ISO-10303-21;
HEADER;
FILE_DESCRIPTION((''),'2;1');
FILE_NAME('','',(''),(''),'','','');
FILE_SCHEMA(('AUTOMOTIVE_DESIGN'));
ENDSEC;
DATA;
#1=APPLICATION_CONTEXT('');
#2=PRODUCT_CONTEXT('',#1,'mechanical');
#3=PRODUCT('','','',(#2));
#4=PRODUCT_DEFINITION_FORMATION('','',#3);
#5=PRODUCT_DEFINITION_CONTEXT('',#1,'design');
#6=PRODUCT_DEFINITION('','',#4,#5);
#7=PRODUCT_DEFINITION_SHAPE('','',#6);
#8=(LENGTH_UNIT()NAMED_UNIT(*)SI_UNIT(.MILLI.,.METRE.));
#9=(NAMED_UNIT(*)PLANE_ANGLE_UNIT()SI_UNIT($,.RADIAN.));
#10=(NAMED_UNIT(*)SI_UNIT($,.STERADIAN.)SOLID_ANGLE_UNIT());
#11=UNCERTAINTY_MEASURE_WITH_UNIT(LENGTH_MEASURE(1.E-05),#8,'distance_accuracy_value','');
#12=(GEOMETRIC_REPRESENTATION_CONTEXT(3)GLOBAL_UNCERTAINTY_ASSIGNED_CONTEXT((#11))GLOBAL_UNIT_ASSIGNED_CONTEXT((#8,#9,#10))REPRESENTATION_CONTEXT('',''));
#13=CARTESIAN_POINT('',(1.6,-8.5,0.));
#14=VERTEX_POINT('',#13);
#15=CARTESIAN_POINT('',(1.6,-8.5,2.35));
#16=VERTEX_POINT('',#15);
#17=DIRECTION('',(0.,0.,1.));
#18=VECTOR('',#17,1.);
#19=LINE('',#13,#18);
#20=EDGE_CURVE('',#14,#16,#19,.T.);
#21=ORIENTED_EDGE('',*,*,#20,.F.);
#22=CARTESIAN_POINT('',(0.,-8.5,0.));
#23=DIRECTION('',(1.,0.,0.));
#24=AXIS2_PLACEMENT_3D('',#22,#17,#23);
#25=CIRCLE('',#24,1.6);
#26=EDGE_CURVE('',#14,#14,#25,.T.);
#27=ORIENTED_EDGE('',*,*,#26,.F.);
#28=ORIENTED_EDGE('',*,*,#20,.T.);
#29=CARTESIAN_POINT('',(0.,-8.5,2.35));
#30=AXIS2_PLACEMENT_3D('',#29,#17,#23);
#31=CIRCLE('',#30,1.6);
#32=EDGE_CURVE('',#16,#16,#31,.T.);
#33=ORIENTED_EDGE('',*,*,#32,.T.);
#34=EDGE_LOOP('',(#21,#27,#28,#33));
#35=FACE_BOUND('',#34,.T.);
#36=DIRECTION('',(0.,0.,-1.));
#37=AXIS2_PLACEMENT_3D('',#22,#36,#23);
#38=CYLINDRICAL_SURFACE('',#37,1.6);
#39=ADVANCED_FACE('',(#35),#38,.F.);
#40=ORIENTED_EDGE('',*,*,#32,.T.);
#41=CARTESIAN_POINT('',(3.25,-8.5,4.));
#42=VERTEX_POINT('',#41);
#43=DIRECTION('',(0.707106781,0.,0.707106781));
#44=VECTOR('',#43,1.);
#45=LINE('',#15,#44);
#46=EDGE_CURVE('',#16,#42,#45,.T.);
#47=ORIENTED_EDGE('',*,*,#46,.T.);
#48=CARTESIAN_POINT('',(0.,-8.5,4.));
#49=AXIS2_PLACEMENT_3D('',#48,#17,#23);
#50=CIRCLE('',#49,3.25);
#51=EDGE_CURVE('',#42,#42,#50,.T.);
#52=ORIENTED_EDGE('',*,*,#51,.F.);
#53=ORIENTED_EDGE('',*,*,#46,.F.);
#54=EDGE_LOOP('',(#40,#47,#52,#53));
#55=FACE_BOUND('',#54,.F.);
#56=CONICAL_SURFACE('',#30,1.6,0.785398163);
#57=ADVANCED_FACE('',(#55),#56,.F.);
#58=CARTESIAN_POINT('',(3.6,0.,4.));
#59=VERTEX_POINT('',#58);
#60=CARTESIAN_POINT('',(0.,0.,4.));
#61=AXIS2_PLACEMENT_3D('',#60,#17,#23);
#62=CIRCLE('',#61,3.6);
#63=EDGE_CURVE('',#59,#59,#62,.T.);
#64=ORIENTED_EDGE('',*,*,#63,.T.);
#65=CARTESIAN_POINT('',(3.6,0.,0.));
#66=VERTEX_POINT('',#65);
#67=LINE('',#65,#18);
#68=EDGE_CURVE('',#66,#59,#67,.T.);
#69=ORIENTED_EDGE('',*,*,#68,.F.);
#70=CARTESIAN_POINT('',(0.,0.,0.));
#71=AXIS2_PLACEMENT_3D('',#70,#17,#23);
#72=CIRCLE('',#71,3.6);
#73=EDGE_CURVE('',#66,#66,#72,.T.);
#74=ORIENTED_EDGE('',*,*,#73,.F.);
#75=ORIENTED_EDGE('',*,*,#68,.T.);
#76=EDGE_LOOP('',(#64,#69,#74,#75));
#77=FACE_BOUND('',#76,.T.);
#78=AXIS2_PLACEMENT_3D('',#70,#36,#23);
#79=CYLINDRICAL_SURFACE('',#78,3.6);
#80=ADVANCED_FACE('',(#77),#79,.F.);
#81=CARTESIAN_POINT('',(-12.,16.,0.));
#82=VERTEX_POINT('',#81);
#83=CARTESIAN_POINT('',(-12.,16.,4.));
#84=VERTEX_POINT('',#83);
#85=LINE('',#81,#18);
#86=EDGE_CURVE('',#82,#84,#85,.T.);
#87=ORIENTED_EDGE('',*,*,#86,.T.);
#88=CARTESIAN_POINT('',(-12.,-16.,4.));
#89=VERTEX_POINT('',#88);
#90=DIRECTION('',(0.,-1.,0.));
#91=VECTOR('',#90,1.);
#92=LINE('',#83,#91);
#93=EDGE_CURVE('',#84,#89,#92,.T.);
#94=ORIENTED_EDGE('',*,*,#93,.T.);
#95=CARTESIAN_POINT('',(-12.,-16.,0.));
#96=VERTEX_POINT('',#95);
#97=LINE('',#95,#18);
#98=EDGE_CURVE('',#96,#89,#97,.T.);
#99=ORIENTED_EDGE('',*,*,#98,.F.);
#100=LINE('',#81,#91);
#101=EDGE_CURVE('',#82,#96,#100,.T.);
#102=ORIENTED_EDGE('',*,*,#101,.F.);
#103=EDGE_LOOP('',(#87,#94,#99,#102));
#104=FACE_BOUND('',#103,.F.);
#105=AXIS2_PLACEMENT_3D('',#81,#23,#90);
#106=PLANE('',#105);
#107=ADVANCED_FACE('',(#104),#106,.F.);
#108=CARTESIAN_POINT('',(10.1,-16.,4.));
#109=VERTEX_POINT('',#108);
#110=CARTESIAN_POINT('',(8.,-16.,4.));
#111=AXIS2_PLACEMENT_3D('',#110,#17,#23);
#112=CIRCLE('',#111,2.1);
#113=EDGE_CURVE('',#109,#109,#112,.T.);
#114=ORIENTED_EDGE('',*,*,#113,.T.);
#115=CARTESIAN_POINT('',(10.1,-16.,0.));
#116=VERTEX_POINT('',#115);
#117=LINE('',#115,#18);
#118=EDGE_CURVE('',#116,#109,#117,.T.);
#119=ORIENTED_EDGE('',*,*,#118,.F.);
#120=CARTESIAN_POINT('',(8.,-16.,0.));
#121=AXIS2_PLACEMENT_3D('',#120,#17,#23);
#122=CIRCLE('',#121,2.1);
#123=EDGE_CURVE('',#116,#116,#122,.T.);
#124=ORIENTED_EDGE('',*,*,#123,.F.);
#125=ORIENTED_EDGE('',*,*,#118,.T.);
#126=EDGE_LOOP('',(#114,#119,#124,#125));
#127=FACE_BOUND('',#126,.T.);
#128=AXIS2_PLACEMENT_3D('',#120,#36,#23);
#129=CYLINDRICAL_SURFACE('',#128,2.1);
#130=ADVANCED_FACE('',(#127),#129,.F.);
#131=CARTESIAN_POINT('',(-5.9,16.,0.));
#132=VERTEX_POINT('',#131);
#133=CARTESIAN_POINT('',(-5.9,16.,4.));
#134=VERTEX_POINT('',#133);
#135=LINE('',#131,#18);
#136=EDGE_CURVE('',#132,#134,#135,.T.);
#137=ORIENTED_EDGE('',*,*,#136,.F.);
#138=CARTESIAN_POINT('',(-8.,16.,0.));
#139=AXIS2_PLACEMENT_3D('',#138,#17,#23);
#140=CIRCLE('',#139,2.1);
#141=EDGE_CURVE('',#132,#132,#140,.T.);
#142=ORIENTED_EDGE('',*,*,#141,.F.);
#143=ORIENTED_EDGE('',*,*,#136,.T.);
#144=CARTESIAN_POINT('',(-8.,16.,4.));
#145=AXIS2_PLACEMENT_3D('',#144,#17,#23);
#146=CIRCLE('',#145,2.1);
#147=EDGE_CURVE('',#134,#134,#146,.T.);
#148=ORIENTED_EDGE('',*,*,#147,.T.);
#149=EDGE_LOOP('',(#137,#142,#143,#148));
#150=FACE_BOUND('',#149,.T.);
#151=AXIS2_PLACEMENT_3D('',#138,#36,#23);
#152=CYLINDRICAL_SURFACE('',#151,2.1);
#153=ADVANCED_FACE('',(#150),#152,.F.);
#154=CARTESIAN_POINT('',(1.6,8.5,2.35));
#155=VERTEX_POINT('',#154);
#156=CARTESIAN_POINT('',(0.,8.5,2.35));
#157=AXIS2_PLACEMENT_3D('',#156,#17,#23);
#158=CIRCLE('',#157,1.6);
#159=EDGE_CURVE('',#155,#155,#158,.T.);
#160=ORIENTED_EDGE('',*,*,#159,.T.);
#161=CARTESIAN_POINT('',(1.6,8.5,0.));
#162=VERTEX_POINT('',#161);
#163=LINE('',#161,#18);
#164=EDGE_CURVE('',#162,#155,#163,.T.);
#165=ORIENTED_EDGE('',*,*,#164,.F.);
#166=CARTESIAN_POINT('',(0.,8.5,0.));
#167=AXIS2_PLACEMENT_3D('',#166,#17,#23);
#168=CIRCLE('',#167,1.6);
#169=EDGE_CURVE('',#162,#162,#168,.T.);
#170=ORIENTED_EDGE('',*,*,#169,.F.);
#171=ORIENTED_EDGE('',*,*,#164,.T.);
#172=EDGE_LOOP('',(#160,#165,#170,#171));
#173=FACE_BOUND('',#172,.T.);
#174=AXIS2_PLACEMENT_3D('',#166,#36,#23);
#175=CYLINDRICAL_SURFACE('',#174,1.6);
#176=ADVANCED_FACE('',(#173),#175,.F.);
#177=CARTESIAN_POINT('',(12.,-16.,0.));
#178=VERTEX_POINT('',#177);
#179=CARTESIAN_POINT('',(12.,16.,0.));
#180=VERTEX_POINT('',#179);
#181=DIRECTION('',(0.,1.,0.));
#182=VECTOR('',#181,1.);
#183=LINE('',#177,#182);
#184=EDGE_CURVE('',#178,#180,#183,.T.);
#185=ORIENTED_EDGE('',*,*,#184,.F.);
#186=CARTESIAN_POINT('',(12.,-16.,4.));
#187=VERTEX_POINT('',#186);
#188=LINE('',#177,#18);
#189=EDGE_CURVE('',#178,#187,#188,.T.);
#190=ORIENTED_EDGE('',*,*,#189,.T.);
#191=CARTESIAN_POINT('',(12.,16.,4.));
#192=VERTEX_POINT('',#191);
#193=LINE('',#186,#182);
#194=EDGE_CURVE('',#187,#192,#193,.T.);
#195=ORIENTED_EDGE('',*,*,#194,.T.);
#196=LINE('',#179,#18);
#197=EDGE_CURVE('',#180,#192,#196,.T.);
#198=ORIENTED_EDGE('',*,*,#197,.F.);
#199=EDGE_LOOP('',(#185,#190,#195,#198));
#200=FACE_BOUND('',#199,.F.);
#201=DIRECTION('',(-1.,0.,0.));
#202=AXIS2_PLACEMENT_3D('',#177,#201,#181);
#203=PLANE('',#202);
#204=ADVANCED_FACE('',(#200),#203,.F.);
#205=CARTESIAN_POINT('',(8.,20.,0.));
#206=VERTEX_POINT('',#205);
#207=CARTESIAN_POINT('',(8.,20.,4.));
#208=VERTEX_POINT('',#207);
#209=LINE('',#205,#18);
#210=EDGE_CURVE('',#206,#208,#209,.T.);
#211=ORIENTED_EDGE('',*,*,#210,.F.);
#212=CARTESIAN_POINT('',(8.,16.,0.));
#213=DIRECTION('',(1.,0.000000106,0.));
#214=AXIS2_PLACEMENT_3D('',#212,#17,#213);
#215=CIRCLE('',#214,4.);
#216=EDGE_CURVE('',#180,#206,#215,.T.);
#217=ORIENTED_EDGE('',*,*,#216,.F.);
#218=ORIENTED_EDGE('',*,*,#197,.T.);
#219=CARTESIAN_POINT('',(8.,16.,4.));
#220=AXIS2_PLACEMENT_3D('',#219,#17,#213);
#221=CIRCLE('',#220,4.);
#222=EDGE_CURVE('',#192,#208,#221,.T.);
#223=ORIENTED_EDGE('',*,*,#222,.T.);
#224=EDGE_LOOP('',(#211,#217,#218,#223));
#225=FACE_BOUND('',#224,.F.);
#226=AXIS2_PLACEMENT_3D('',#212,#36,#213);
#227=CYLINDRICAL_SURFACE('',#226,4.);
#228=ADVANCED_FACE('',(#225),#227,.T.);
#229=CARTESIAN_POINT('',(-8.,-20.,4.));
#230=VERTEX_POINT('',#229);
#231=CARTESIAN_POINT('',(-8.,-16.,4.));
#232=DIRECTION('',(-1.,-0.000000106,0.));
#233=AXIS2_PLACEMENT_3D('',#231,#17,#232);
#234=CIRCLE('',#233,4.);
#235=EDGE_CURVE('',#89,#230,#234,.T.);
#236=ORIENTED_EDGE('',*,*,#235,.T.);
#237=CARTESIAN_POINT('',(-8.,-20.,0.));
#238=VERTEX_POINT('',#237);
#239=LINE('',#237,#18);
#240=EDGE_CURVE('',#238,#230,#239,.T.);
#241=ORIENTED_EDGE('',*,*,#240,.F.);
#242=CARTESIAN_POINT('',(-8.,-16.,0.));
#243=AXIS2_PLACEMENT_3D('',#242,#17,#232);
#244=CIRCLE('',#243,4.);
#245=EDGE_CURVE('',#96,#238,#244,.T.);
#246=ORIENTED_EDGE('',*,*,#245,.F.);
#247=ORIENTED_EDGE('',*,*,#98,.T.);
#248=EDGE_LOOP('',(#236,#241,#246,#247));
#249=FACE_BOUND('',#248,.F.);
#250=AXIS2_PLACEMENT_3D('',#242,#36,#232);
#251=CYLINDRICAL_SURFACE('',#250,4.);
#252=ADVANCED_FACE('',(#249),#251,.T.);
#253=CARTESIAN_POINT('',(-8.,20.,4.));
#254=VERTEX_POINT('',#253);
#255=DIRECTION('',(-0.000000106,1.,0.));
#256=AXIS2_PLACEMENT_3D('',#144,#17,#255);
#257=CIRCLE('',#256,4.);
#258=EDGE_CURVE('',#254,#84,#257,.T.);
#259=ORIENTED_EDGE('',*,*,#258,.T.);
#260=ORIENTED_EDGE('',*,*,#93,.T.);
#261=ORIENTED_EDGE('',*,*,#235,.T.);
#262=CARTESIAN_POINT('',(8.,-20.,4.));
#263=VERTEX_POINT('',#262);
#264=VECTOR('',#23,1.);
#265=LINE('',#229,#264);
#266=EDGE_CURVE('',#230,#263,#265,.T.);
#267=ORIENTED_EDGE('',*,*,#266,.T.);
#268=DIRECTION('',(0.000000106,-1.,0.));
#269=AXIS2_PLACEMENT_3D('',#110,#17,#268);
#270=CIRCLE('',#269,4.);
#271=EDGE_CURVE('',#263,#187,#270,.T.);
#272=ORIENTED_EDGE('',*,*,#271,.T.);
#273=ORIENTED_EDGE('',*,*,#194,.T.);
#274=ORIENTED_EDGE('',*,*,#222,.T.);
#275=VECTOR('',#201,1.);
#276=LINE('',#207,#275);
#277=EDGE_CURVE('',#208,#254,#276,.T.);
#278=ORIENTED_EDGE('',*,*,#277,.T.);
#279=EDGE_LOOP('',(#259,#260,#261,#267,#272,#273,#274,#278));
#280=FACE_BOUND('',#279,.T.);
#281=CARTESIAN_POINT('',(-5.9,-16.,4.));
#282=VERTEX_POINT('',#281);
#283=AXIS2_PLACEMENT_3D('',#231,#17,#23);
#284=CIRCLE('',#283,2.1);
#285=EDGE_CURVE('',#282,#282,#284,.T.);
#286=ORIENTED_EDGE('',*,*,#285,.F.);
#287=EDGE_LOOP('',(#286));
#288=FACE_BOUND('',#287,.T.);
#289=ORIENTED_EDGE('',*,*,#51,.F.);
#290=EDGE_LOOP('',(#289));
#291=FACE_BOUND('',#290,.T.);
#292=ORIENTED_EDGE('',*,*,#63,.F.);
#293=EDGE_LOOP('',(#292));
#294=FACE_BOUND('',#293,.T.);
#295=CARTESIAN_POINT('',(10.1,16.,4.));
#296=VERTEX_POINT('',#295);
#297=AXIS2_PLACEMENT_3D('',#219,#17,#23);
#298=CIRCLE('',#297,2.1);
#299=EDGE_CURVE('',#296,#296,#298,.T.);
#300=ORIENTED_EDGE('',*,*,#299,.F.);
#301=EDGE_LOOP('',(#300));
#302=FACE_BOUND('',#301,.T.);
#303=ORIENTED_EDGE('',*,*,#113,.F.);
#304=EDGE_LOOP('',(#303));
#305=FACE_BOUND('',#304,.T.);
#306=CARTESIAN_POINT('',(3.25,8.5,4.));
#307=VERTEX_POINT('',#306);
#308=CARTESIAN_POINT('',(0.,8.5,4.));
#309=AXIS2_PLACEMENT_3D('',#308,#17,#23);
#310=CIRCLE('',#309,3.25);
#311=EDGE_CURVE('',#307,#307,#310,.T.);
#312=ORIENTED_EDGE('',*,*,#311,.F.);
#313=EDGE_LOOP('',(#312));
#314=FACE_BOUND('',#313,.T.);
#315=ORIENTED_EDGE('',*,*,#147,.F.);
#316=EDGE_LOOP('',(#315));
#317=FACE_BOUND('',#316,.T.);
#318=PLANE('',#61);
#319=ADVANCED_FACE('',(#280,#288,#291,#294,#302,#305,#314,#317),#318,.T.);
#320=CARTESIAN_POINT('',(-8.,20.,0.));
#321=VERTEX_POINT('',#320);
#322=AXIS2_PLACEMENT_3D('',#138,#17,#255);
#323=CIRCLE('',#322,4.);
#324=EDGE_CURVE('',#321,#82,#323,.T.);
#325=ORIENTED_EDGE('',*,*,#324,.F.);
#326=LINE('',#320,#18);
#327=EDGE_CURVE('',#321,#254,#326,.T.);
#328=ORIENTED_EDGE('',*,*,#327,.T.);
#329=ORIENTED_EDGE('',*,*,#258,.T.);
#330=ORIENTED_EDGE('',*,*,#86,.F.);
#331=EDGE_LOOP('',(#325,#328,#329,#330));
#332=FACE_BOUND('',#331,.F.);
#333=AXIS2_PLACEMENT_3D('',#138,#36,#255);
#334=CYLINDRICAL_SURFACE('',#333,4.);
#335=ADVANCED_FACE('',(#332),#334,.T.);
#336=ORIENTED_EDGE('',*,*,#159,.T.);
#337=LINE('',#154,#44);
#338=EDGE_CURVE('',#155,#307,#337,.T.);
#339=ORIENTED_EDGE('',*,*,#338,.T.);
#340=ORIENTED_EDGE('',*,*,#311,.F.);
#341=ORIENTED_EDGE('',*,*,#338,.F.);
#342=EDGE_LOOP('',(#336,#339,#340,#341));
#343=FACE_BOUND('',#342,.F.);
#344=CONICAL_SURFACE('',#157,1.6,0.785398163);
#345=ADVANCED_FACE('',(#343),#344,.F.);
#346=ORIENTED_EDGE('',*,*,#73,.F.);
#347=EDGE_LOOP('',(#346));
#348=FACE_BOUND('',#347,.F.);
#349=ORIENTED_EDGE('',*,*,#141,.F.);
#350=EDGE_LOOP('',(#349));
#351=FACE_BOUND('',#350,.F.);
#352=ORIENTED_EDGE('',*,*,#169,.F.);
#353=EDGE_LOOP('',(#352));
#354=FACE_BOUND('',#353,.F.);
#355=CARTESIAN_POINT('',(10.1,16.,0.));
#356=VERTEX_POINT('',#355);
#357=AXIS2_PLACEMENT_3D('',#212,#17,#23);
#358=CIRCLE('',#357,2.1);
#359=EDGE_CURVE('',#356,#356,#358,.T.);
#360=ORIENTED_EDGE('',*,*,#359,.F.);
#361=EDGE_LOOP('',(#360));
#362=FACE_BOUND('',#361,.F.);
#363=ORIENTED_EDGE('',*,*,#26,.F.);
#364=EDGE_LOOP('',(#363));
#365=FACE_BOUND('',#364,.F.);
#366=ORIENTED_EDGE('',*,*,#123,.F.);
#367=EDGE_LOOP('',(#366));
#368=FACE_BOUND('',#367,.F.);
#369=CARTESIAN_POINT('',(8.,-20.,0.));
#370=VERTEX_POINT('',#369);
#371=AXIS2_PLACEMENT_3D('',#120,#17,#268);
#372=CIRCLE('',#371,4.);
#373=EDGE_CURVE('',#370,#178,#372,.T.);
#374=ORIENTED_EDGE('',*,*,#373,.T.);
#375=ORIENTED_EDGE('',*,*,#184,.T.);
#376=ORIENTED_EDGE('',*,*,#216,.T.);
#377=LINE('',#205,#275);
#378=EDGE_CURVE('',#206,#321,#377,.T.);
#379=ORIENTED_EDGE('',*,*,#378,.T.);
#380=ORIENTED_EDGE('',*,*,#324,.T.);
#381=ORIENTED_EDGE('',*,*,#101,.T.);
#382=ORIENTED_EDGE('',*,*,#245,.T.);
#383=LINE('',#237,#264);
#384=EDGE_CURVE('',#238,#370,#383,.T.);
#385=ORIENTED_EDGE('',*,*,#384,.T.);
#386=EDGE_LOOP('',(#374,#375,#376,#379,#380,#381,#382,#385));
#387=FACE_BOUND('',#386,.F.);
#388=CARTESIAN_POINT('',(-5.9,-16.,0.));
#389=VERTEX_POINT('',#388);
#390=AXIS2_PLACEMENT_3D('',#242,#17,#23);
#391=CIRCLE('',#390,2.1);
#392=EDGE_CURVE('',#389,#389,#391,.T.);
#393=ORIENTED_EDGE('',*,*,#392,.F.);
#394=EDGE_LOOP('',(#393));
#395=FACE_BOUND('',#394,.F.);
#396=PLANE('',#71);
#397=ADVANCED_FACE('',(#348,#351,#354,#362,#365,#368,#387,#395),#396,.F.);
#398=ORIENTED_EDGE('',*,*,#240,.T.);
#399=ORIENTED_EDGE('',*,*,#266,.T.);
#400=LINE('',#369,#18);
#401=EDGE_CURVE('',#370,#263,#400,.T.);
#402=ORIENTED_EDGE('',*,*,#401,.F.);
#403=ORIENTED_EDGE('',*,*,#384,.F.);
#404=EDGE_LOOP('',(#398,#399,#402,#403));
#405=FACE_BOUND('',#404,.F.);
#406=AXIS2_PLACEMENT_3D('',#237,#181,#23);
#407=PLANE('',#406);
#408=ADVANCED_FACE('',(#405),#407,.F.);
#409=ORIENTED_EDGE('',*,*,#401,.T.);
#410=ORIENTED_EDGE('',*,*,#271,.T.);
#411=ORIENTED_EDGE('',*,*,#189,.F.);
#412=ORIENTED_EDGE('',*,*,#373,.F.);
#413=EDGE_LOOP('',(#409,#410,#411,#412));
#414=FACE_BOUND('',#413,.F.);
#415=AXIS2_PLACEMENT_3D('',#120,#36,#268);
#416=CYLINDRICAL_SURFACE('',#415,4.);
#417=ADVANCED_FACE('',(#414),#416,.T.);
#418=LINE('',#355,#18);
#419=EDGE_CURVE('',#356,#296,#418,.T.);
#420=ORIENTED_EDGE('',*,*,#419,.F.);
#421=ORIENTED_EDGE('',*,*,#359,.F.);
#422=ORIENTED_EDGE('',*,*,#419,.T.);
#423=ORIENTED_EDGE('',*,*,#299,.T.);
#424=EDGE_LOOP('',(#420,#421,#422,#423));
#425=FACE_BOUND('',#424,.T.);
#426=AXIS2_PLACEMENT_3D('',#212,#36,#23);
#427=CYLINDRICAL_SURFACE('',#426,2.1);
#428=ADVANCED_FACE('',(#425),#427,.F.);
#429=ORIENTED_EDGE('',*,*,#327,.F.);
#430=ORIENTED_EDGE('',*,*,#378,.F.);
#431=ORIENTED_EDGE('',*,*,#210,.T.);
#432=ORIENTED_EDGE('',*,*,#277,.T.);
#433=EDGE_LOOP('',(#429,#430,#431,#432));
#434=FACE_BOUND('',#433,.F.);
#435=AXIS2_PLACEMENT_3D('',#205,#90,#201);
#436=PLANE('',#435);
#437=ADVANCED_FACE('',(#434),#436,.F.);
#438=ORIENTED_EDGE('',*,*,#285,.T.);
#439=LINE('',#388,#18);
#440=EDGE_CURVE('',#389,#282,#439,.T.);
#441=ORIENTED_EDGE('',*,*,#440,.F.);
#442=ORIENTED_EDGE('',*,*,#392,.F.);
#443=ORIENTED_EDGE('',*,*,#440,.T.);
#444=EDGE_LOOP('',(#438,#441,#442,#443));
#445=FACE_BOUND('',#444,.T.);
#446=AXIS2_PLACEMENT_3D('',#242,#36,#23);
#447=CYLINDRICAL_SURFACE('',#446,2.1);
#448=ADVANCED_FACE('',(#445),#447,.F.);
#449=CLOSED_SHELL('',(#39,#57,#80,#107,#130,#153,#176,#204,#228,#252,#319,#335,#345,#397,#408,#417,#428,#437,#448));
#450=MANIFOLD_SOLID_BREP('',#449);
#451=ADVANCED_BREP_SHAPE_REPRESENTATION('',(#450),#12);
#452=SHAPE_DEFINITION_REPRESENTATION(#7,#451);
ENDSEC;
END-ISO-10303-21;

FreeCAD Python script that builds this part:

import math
import FreeCAD as App
import Part
import Sketcher
from FreeCAD import Vector


def edges_at(feature, points):
    """Names of the edges that pass closest to the given points."""
    edges = feature.Shape.Edges
    near = lambda p: min(range(len(edges)), key=lambda i: edges[i].distToShape(Part.Vertex(*p))[0])
    return sorted({f"Edge{near(p) + 1}" for p in points})

doc = App.newDocument("Part")
body = doc.addObject("PartDesign::Body", "Body")

sketch1 = doc.addObject("Sketcher::SketchObject", "Sketch")
body.addObject(sketch1)
sketch1.AttachmentSupport = (doc.XY_Plane, [""])
sketch1.MapMode = "FlatFace"
sketch1.addGeometry([
    Part.ArcOfCircle(Part.Circle(Vector(8, 16, 0), Vector(0, 0, 1), 4), math.radians(0.000006), math.radians(89.999994)),
    Part.LineSegment(Vector(8, 20, 0), Vector(-8, 20, 0)),
    Part.ArcOfCircle(Part.Circle(Vector(-8, 16, 0), Vector(0, 0, 1), 4), math.radians(90.000006), math.radians(179.999994)),
    Part.LineSegment(Vector(-12, 16, 0), Vector(-12, -16, 0)),
    Part.ArcOfCircle(Part.Circle(Vector(-8, -16, 0), Vector(0, 0, 1), 4), math.radians(-179.999994), math.radians(-90.000006)),
    Part.LineSegment(Vector(-8, -20, 0), Vector(8, -20, 0)),
    Part.ArcOfCircle(Part.Circle(Vector(8, -16, 0), Vector(0, 0, 1), 4), math.radians(-89.999994), math.radians(-0.000006)),
    Part.LineSegment(Vector(12, -16, 0), Vector(12, 16, 0)),
    Part.Circle(Vector(-8, -16, 0), Vector(0, 0, 1), 2.1),
    Part.Circle(Vector(8, -16, 0), Vector(0, 0, 1), 2.1),
    Part.Circle(Vector(0, -8.5, 0), Vector(0, 0, 1), 1.6),
    Part.Circle(Vector(-8, 16, 0), Vector(0, 0, 1), 2.1),
    Part.Circle(Vector(0, 0, 0), Vector(0, 0, 1), 3.6),
    Part.Circle(Vector(0, 8.5, 0), Vector(0, 0, 1), 1.6),
    Part.Circle(Vector(8, 16, 0), Vector(0, 0, 1), 2.1),
], False)
sketch1.addConstraint([
    Sketcher.Constraint("Tangent", 0, 2, 1, 1),
    Sketcher.Constraint("Tangent", 1, 2, 2, 1),
    Sketcher.Constraint("Tangent", 2, 2, 3, 1),
    Sketcher.Constraint("Tangent", 3, 2, 4, 1),
    Sketcher.Constraint("Tangent", 4, 2, 5, 1),
    Sketcher.Constraint("Tangent", 5, 2, 6, 1),
    Sketcher.Constraint("Tangent", 6, 2, 7, 1),
    Sketcher.Constraint("Tangent", 7, 2, 0, 1),
    Sketcher.Constraint("Horizontal", 1),
    Sketcher.Constraint("Vertical", 3),
    Sketcher.Constraint("Horizontal", 5),
    Sketcher.Constraint("Vertical", 7),
    Sketcher.Constraint("Coincident", 12, 3, -1, 1),
    Sketcher.Constraint("Coincident", 8, 3, 4, 3),
    Sketcher.Constraint("Coincident", 9, 3, 6, 3),
    Sketcher.Constraint("Coincident", 11, 3, 2, 3),
    Sketcher.Constraint("Coincident", 14, 3, 0, 3),
    Sketcher.Constraint("Equal", 0, 2),
    Sketcher.Constraint("Equal", 2, 4),
    Sketcher.Constraint("Equal", 4, 6),
    Sketcher.Constraint("Equal", 8, 9),
    Sketcher.Constraint("Equal", 9, 11),
    Sketcher.Constraint("Equal", 10, 13),
    Sketcher.Constraint("Equal", 11, 14),
    Sketcher.Constraint("Symmetric", 0, 3, 4, 3, -1, 1),
    Sketcher.Constraint("Symmetric", 10, 3, 13, 3, -1, 1),
    Sketcher.Constraint("PointOnObject", 10, 3, -2),
    Sketcher.Constraint("Radius", 0, 4.0),
    Sketcher.Constraint("Diameter", 8, 4.2),
    Sketcher.Constraint("Diameter", 10, 3.2),
    Sketcher.Constraint("Diameter", 12, 7.2),
    Sketcher.Constraint("DistanceX", 1, 2, 1, 1, 16.0),
    Sketcher.Constraint("DistanceY", 3, 2, 3, 1, 32.0),
    Sketcher.Constraint("DistanceY", 10, 3, 13, 3, 17.0),
])
pad1 = doc.addObject("PartDesign::Pad", "Pad")
body.addObject(pad1)
pad1.Profile = sketch1
pad1.Length = 4
doc.recompute()

chamfer = doc.addObject("PartDesign::Chamfer", "Chamfer")
body.addObject(chamfer)
chamfer.Base = (pad1, edges_at(pad1, [(-1.6, 8.5, 4), (-1.6, -8.5, 4)]))
chamfer.ChamferType = "Two distances"
chamfer.Size = 1.65
chamfer.Size2 = 1.65

doc.recompute()
